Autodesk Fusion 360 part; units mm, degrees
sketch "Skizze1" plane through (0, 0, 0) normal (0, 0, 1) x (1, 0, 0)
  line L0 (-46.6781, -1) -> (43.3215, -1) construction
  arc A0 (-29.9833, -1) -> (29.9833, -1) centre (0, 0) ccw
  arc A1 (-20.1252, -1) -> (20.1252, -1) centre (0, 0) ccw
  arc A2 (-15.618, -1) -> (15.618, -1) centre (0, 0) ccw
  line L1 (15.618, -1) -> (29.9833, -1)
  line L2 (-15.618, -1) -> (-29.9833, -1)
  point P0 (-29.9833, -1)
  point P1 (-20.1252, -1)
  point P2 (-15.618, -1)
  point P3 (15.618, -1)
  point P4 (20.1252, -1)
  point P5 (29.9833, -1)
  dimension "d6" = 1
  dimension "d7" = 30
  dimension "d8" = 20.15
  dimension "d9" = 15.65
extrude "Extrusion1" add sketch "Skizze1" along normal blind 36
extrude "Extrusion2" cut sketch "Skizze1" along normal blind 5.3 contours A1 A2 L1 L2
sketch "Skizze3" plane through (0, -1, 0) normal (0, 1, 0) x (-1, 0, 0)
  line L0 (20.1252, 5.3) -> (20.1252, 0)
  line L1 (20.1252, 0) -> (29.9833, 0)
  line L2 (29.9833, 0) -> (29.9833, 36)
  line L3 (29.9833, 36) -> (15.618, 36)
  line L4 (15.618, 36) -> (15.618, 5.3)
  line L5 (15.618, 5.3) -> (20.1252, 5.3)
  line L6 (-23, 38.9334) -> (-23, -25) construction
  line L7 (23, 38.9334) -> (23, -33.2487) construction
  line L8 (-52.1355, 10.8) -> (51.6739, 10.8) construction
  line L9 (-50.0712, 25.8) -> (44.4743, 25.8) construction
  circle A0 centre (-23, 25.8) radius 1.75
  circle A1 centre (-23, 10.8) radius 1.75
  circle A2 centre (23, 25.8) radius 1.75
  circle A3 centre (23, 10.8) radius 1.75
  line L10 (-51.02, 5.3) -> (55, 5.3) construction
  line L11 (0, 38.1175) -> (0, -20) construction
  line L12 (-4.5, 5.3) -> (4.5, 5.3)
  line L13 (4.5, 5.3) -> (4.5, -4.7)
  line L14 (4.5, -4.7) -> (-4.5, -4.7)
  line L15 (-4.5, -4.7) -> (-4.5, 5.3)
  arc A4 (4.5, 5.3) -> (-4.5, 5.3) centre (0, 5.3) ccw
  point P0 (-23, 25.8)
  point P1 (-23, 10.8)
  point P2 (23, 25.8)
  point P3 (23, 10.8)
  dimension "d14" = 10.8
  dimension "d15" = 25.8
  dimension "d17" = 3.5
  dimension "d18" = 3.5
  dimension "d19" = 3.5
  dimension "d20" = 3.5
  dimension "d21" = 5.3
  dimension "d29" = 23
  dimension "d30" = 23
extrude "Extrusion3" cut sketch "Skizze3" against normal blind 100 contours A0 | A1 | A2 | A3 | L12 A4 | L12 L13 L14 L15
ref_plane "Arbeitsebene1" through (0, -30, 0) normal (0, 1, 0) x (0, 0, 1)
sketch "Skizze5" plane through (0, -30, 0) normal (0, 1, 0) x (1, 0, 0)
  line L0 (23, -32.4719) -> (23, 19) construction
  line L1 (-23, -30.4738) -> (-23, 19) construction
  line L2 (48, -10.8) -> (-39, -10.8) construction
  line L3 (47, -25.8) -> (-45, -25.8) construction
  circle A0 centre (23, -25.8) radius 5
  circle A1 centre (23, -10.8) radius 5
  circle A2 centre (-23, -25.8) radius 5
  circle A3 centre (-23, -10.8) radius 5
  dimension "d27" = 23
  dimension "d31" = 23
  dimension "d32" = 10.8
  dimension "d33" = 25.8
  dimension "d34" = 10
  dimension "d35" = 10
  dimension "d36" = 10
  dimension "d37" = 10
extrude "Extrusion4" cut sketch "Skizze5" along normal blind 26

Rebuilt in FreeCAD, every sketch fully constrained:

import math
import FreeCAD as App
import Part
import Sketcher
from FreeCAD import Vector
Q = App.Units.Quantity

doc = App.newDocument("Part")
params = doc.addObject("Spreadsheet::Sheet", "Params")
for row, (alias, value) in enumerate([
    ("sketch1_radius", "30 mm"),
    ("sketch1_radius2", "15.65 mm"),
    ("pad1_length", "36 mm"),
    ("sketch2_radius", "20.15 mm"),
    ("sketch2_radius2", "15.65 mm"),
    ("pocket1_length", "5.3 mm"),
    ("sketch3_diameter", "3.5 mm"),
    ("sketch3_radius", "4.5 mm"),
    ("sketch3_height", "10 mm"),
    ("pocket2_length", "100 mm"),
    ("sketch4_diameter", "10 mm"),
    ("pocket3_length", "26 mm"),
], start=1):
    params.set(f"A{row}", alias)
    params.set(f"B{row}", "=" + value)
    params.setAlias(f"B{row}", alias)

body = doc.addObject("PartDesign::Body", "Body")

# Sketch on XY plane
sketch1 = body.newObject("Sketcher::SketchObject", "Sketch")
sketch1.AttachmentSupport = (doc.getObject("XY_Plane"), [""])
sketch1.MapMode = "FlatFace"
sketch1.addGeometry([
    Part.ArcOfCircle(Part.Circle(Vector(0, 0, 0), Vector(0, 0, 1), 30), math.radians(-178), math.radians(-2)),
    Part.LineSegment(Vector(30, -1, 0), Vector(16, -1, 0)),
    Part.ArcOfCircle(Part.Circle(Vector(0, 0, 0), Vector(0, 0, 1), 16), math.radians(-176), math.radians(-4)),
    Part.LineSegment(Vector(-16, -1, 0), Vector(-30, -1, 0)),
], False)
sketch1.addConstraint([
    Sketcher.Constraint("Coincident", 0, 2, 1, 1),
    Sketcher.Constraint("Coincident", 1, 2, 2, 2),
    Sketcher.Constraint("Coincident", 2, 1, 3, 1),
    Sketcher.Constraint("Coincident", 3, 2, 0, 1),
    Sketcher.Constraint("Horizontal", 1),
    Sketcher.Constraint("Horizontal", 3),
    Sketcher.Constraint("Coincident", 0, 3, -1, 1),
    Sketcher.Constraint("Coincident", 2, 3, -1, 1),
    Sketcher.Constraint("Horizontal", 1, 2, 2, 1),
    Sketcher.Constraint("Radius", 0, Q("30 mm")),
    Sketcher.Constraint("Radius", 2, Q("15.65 mm")),
    Sketcher.Constraint("DistanceY", 0, 2, -1, 1, Q("1 mm")),
])
sketch1.setExpression("Constraints[9]", "Params.sketch1_radius")
sketch1.setExpression("Constraints[10]", "Params.sketch1_radius2")
pad1 = body.newObject("PartDesign::Pad", "Pad")
pad1.Profile = sketch1
pad1.setExpression("Length", "Params.pad1_length")

# Sketch on XY plane
sketch2 = body.newObject("Sketcher::SketchObject", "Sketch001")
sketch2.AttachmentSupport = (doc.getObject("XY_Plane"), [""])
sketch2.MapMode = "FlatFace"
sketch2.addGeometry([
    Part.LineSegment(Vector(-15.6, -1, 0), Vector(-20.1, -1, 0)),
    Part.ArcOfCircle(Part.Circle(Vector(0, 0, 0), Vector(0, 0, 1), 20.2), math.radians(-177), math.radians(-3)),
    Part.LineSegment(Vector(20.1, -1, 0), Vector(15.6, -1, 0)),
    Part.ArcOfCircle(Part.Circle(Vector(0, 0, 0), Vector(0, 0, 1), 15.6), math.radians(-176), math.radians(-4)),
], False)
sketch2.addConstraint([
    Sketcher.Constraint("Coincident", 0, 2, 1, 1),
    Sketcher.Constraint("Coincident", 1, 2, 2, 1),
    Sketcher.Constraint("Coincident", 2, 2, 3, 2),
    Sketcher.Constraint("Coincident", 3, 1, 0, 1),
    Sketcher.Constraint("Horizontal", 0),
    Sketcher.Constraint("Horizontal", 2),
    Sketcher.Constraint("Coincident", 1, 3, -1, 1),
    Sketcher.Constraint("Coincident", 3, 3, -1, 1),
    Sketcher.Constraint("Horizontal", 0, 2, 1, 2),
    Sketcher.Constraint("Radius", 1, Q("20.15 mm")),
    Sketcher.Constraint("Radius", 3, Q("15.65 mm")),
    Sketcher.Constraint("DistanceY", 0, 2, -1, 1, Q("1 mm")),
])
sketch2.setExpression("Constraints[9]", "Params.sketch2_radius")
sketch2.setExpression("Constraints[10]", "Params.sketch2_radius2")
pocket1 = body.newObject("PartDesign::Pocket", "Pocket")
pocket1.Profile = sketch2
pocket1.setExpression("Length", "Params.pocket1_length")
pocket1.Reversed = True

# Sketch on XZ plane
sketch3 = body.newObject("Sketcher::SketchObject", "Sketch002")
sketch3.AttachmentSupport = (doc.getObject("XZ_Plane"), [""])
sketch3.MapMode = "FlatFace"
sketch3.AttachmentOffset = App.Placement(Vector(0, 0, 1), App.Rotation())
sketch3.addGeometry([
    Part.Circle(Vector(23, 25.8, 0), Vector(0, 0, 1), 1.8),  # 0
    Part.Circle(Vector(23, 10.8, 0), Vector(0, 0, 1), 1.8),  # 1
    Part.Circle(Vector(-23, 25.8, 0), Vector(0, 0, 1), 1.8),  # 2
    Part.Circle(Vector(-23, 10.8, 0), Vector(0, 0, 1), 1.8),  # 3
    Part.ArcOfCircle(Part.Circle(Vector(0, 5.3, 0), Vector(0, 0, 1), 4.5), math.radians(0), math.radians(180)),  # 4
    Part.LineSegment(Vector(4.5, 5.3, 0), Vector(4.5, -4.7, 0)),  # 5
    Part.LineSegment(Vector(4.5, -4.7, 0), Vector(-4.5, -4.7, 0)),  # 6
    Part.LineSegment(Vector(-4.5, -4.7, 0), Vector(-4.5, 5.3, 0)),  # 7
], False)
sketch3.addConstraint([
    Sketcher.Constraint("Tangent", 4, 1, 5, 1),
    Sketcher.Constraint("Coincident", 5, 2, 6, 1),
    Sketcher.Constraint("Coincident", 6, 2, 7, 1),
    Sketcher.Constraint("Tangent", 7, 2, 4, 2),
    Sketcher.Constraint("Vertical", 5),
    Sketcher.Constraint("Horizontal", 6),
    Sketcher.Constraint("Vertical", 7),
    Sketcher.Constraint("Equal", 0, 1),
    Sketcher.Constraint("Equal", 1, 2),
    Sketcher.Constraint("Equal", 2, 3),
    Sketcher.Constraint("Symmetric", 0, 3, 2, 3, -2),
    Sketcher.Constraint("Symmetric", 1, 3, 3, 3, -2),
    Sketcher.Constraint("PointOnObject", 4, 3, -2),
    Sketcher.Constraint("Vertical", 0, 3, 1, 3),
    Sketcher.Constraint("Diameter", 0, Q("3.5 mm")),
    Sketcher.Constraint("DistanceX", -1, 1, 0, 3, Q("23 mm")),
    Sketcher.Constraint("DistanceY", -1, 1, 0, 3, Q("25.8 mm")),
    Sketcher.Constraint("DistanceY", -1, 1, 1, 3, Q("10.8 mm")),
    Sketcher.Constraint("DistanceY", -1, 1, 4, 3, Q("5.3 mm")),
    Sketcher.Constraint("Radius", 4, Q("4.5 mm")),
    Sketcher.Constraint("DistanceY", 5, 2, 5, 1, Q("10 mm")),
])
sketch3.setExpression("Constraints[14]", "Params.sketch3_diameter")
sketch3.setExpression("Constraints[19]", "Params.sketch3_radius")
sketch3.setExpression("Constraints[20]", "Params.sketch3_height")
pocket2 = body.newObject("PartDesign::Pocket", "Pocket001")
pocket2.Profile = sketch3
pocket2.setExpression("Length", "Params.pocket2_length")
pocket2.Reversed = True

# Sketch on XZ plane
sketch4 = body.newObject("Sketcher::SketchObject", "Sketch003")
sketch4.AttachmentSupport = (doc.getObject("XZ_Plane"), [""])
sketch4.MapMode = "FlatFace"
sketch4.AttachmentOffset = App.Placement(Vector(0, 0, 30), App.Rotation())
sketch4.addGeometry([
    Part.Circle(Vector(23, 26, 0), Vector(0, 0, 1), 5),
    Part.Circle(Vector(23, 11, 0), Vector(0, 0, 1), 5),
    Part.Circle(Vector(-23, 26, 0), Vector(0, 0, 1), 5),
    Part.Circle(Vector(-23, 11, 0), Vector(0, 0, 1), 5),
], False)
sketch4.addConstraint([
    Sketcher.Constraint("Equal", 0, 1),
    Sketcher.Constraint("Equal", 1, 2),
    Sketcher.Constraint("Equal", 2, 3),
    Sketcher.Constraint("Symmetric", 0, 3, 2, 3, -2),
    Sketcher.Constraint("Symmetric", 1, 3, 3, 3, -2),
    Sketcher.Constraint("Vertical", 0, 3, 1, 3),
    Sketcher.Constraint("Diameter", 0, Q("10 mm")),
    Sketcher.Constraint("DistanceX", -1, 1, 0, 3, Q("23 mm")),
    Sketcher.Constraint("DistanceY", -1, 1, 0, 3, Q("25.8 mm")),
    Sketcher.Constraint("DistanceY", -1, 1, 1, 3, Q("10.8 mm")),
])
sketch4.setExpression("Constraints[6]", "Params.sketch4_diameter")
pocket3 = body.newObject("PartDesign::Pocket", "Pocket002")
pocket3.Profile = sketch4
pocket3.setExpression("Length", "Params.pocket3_length")

doc.recompute()
